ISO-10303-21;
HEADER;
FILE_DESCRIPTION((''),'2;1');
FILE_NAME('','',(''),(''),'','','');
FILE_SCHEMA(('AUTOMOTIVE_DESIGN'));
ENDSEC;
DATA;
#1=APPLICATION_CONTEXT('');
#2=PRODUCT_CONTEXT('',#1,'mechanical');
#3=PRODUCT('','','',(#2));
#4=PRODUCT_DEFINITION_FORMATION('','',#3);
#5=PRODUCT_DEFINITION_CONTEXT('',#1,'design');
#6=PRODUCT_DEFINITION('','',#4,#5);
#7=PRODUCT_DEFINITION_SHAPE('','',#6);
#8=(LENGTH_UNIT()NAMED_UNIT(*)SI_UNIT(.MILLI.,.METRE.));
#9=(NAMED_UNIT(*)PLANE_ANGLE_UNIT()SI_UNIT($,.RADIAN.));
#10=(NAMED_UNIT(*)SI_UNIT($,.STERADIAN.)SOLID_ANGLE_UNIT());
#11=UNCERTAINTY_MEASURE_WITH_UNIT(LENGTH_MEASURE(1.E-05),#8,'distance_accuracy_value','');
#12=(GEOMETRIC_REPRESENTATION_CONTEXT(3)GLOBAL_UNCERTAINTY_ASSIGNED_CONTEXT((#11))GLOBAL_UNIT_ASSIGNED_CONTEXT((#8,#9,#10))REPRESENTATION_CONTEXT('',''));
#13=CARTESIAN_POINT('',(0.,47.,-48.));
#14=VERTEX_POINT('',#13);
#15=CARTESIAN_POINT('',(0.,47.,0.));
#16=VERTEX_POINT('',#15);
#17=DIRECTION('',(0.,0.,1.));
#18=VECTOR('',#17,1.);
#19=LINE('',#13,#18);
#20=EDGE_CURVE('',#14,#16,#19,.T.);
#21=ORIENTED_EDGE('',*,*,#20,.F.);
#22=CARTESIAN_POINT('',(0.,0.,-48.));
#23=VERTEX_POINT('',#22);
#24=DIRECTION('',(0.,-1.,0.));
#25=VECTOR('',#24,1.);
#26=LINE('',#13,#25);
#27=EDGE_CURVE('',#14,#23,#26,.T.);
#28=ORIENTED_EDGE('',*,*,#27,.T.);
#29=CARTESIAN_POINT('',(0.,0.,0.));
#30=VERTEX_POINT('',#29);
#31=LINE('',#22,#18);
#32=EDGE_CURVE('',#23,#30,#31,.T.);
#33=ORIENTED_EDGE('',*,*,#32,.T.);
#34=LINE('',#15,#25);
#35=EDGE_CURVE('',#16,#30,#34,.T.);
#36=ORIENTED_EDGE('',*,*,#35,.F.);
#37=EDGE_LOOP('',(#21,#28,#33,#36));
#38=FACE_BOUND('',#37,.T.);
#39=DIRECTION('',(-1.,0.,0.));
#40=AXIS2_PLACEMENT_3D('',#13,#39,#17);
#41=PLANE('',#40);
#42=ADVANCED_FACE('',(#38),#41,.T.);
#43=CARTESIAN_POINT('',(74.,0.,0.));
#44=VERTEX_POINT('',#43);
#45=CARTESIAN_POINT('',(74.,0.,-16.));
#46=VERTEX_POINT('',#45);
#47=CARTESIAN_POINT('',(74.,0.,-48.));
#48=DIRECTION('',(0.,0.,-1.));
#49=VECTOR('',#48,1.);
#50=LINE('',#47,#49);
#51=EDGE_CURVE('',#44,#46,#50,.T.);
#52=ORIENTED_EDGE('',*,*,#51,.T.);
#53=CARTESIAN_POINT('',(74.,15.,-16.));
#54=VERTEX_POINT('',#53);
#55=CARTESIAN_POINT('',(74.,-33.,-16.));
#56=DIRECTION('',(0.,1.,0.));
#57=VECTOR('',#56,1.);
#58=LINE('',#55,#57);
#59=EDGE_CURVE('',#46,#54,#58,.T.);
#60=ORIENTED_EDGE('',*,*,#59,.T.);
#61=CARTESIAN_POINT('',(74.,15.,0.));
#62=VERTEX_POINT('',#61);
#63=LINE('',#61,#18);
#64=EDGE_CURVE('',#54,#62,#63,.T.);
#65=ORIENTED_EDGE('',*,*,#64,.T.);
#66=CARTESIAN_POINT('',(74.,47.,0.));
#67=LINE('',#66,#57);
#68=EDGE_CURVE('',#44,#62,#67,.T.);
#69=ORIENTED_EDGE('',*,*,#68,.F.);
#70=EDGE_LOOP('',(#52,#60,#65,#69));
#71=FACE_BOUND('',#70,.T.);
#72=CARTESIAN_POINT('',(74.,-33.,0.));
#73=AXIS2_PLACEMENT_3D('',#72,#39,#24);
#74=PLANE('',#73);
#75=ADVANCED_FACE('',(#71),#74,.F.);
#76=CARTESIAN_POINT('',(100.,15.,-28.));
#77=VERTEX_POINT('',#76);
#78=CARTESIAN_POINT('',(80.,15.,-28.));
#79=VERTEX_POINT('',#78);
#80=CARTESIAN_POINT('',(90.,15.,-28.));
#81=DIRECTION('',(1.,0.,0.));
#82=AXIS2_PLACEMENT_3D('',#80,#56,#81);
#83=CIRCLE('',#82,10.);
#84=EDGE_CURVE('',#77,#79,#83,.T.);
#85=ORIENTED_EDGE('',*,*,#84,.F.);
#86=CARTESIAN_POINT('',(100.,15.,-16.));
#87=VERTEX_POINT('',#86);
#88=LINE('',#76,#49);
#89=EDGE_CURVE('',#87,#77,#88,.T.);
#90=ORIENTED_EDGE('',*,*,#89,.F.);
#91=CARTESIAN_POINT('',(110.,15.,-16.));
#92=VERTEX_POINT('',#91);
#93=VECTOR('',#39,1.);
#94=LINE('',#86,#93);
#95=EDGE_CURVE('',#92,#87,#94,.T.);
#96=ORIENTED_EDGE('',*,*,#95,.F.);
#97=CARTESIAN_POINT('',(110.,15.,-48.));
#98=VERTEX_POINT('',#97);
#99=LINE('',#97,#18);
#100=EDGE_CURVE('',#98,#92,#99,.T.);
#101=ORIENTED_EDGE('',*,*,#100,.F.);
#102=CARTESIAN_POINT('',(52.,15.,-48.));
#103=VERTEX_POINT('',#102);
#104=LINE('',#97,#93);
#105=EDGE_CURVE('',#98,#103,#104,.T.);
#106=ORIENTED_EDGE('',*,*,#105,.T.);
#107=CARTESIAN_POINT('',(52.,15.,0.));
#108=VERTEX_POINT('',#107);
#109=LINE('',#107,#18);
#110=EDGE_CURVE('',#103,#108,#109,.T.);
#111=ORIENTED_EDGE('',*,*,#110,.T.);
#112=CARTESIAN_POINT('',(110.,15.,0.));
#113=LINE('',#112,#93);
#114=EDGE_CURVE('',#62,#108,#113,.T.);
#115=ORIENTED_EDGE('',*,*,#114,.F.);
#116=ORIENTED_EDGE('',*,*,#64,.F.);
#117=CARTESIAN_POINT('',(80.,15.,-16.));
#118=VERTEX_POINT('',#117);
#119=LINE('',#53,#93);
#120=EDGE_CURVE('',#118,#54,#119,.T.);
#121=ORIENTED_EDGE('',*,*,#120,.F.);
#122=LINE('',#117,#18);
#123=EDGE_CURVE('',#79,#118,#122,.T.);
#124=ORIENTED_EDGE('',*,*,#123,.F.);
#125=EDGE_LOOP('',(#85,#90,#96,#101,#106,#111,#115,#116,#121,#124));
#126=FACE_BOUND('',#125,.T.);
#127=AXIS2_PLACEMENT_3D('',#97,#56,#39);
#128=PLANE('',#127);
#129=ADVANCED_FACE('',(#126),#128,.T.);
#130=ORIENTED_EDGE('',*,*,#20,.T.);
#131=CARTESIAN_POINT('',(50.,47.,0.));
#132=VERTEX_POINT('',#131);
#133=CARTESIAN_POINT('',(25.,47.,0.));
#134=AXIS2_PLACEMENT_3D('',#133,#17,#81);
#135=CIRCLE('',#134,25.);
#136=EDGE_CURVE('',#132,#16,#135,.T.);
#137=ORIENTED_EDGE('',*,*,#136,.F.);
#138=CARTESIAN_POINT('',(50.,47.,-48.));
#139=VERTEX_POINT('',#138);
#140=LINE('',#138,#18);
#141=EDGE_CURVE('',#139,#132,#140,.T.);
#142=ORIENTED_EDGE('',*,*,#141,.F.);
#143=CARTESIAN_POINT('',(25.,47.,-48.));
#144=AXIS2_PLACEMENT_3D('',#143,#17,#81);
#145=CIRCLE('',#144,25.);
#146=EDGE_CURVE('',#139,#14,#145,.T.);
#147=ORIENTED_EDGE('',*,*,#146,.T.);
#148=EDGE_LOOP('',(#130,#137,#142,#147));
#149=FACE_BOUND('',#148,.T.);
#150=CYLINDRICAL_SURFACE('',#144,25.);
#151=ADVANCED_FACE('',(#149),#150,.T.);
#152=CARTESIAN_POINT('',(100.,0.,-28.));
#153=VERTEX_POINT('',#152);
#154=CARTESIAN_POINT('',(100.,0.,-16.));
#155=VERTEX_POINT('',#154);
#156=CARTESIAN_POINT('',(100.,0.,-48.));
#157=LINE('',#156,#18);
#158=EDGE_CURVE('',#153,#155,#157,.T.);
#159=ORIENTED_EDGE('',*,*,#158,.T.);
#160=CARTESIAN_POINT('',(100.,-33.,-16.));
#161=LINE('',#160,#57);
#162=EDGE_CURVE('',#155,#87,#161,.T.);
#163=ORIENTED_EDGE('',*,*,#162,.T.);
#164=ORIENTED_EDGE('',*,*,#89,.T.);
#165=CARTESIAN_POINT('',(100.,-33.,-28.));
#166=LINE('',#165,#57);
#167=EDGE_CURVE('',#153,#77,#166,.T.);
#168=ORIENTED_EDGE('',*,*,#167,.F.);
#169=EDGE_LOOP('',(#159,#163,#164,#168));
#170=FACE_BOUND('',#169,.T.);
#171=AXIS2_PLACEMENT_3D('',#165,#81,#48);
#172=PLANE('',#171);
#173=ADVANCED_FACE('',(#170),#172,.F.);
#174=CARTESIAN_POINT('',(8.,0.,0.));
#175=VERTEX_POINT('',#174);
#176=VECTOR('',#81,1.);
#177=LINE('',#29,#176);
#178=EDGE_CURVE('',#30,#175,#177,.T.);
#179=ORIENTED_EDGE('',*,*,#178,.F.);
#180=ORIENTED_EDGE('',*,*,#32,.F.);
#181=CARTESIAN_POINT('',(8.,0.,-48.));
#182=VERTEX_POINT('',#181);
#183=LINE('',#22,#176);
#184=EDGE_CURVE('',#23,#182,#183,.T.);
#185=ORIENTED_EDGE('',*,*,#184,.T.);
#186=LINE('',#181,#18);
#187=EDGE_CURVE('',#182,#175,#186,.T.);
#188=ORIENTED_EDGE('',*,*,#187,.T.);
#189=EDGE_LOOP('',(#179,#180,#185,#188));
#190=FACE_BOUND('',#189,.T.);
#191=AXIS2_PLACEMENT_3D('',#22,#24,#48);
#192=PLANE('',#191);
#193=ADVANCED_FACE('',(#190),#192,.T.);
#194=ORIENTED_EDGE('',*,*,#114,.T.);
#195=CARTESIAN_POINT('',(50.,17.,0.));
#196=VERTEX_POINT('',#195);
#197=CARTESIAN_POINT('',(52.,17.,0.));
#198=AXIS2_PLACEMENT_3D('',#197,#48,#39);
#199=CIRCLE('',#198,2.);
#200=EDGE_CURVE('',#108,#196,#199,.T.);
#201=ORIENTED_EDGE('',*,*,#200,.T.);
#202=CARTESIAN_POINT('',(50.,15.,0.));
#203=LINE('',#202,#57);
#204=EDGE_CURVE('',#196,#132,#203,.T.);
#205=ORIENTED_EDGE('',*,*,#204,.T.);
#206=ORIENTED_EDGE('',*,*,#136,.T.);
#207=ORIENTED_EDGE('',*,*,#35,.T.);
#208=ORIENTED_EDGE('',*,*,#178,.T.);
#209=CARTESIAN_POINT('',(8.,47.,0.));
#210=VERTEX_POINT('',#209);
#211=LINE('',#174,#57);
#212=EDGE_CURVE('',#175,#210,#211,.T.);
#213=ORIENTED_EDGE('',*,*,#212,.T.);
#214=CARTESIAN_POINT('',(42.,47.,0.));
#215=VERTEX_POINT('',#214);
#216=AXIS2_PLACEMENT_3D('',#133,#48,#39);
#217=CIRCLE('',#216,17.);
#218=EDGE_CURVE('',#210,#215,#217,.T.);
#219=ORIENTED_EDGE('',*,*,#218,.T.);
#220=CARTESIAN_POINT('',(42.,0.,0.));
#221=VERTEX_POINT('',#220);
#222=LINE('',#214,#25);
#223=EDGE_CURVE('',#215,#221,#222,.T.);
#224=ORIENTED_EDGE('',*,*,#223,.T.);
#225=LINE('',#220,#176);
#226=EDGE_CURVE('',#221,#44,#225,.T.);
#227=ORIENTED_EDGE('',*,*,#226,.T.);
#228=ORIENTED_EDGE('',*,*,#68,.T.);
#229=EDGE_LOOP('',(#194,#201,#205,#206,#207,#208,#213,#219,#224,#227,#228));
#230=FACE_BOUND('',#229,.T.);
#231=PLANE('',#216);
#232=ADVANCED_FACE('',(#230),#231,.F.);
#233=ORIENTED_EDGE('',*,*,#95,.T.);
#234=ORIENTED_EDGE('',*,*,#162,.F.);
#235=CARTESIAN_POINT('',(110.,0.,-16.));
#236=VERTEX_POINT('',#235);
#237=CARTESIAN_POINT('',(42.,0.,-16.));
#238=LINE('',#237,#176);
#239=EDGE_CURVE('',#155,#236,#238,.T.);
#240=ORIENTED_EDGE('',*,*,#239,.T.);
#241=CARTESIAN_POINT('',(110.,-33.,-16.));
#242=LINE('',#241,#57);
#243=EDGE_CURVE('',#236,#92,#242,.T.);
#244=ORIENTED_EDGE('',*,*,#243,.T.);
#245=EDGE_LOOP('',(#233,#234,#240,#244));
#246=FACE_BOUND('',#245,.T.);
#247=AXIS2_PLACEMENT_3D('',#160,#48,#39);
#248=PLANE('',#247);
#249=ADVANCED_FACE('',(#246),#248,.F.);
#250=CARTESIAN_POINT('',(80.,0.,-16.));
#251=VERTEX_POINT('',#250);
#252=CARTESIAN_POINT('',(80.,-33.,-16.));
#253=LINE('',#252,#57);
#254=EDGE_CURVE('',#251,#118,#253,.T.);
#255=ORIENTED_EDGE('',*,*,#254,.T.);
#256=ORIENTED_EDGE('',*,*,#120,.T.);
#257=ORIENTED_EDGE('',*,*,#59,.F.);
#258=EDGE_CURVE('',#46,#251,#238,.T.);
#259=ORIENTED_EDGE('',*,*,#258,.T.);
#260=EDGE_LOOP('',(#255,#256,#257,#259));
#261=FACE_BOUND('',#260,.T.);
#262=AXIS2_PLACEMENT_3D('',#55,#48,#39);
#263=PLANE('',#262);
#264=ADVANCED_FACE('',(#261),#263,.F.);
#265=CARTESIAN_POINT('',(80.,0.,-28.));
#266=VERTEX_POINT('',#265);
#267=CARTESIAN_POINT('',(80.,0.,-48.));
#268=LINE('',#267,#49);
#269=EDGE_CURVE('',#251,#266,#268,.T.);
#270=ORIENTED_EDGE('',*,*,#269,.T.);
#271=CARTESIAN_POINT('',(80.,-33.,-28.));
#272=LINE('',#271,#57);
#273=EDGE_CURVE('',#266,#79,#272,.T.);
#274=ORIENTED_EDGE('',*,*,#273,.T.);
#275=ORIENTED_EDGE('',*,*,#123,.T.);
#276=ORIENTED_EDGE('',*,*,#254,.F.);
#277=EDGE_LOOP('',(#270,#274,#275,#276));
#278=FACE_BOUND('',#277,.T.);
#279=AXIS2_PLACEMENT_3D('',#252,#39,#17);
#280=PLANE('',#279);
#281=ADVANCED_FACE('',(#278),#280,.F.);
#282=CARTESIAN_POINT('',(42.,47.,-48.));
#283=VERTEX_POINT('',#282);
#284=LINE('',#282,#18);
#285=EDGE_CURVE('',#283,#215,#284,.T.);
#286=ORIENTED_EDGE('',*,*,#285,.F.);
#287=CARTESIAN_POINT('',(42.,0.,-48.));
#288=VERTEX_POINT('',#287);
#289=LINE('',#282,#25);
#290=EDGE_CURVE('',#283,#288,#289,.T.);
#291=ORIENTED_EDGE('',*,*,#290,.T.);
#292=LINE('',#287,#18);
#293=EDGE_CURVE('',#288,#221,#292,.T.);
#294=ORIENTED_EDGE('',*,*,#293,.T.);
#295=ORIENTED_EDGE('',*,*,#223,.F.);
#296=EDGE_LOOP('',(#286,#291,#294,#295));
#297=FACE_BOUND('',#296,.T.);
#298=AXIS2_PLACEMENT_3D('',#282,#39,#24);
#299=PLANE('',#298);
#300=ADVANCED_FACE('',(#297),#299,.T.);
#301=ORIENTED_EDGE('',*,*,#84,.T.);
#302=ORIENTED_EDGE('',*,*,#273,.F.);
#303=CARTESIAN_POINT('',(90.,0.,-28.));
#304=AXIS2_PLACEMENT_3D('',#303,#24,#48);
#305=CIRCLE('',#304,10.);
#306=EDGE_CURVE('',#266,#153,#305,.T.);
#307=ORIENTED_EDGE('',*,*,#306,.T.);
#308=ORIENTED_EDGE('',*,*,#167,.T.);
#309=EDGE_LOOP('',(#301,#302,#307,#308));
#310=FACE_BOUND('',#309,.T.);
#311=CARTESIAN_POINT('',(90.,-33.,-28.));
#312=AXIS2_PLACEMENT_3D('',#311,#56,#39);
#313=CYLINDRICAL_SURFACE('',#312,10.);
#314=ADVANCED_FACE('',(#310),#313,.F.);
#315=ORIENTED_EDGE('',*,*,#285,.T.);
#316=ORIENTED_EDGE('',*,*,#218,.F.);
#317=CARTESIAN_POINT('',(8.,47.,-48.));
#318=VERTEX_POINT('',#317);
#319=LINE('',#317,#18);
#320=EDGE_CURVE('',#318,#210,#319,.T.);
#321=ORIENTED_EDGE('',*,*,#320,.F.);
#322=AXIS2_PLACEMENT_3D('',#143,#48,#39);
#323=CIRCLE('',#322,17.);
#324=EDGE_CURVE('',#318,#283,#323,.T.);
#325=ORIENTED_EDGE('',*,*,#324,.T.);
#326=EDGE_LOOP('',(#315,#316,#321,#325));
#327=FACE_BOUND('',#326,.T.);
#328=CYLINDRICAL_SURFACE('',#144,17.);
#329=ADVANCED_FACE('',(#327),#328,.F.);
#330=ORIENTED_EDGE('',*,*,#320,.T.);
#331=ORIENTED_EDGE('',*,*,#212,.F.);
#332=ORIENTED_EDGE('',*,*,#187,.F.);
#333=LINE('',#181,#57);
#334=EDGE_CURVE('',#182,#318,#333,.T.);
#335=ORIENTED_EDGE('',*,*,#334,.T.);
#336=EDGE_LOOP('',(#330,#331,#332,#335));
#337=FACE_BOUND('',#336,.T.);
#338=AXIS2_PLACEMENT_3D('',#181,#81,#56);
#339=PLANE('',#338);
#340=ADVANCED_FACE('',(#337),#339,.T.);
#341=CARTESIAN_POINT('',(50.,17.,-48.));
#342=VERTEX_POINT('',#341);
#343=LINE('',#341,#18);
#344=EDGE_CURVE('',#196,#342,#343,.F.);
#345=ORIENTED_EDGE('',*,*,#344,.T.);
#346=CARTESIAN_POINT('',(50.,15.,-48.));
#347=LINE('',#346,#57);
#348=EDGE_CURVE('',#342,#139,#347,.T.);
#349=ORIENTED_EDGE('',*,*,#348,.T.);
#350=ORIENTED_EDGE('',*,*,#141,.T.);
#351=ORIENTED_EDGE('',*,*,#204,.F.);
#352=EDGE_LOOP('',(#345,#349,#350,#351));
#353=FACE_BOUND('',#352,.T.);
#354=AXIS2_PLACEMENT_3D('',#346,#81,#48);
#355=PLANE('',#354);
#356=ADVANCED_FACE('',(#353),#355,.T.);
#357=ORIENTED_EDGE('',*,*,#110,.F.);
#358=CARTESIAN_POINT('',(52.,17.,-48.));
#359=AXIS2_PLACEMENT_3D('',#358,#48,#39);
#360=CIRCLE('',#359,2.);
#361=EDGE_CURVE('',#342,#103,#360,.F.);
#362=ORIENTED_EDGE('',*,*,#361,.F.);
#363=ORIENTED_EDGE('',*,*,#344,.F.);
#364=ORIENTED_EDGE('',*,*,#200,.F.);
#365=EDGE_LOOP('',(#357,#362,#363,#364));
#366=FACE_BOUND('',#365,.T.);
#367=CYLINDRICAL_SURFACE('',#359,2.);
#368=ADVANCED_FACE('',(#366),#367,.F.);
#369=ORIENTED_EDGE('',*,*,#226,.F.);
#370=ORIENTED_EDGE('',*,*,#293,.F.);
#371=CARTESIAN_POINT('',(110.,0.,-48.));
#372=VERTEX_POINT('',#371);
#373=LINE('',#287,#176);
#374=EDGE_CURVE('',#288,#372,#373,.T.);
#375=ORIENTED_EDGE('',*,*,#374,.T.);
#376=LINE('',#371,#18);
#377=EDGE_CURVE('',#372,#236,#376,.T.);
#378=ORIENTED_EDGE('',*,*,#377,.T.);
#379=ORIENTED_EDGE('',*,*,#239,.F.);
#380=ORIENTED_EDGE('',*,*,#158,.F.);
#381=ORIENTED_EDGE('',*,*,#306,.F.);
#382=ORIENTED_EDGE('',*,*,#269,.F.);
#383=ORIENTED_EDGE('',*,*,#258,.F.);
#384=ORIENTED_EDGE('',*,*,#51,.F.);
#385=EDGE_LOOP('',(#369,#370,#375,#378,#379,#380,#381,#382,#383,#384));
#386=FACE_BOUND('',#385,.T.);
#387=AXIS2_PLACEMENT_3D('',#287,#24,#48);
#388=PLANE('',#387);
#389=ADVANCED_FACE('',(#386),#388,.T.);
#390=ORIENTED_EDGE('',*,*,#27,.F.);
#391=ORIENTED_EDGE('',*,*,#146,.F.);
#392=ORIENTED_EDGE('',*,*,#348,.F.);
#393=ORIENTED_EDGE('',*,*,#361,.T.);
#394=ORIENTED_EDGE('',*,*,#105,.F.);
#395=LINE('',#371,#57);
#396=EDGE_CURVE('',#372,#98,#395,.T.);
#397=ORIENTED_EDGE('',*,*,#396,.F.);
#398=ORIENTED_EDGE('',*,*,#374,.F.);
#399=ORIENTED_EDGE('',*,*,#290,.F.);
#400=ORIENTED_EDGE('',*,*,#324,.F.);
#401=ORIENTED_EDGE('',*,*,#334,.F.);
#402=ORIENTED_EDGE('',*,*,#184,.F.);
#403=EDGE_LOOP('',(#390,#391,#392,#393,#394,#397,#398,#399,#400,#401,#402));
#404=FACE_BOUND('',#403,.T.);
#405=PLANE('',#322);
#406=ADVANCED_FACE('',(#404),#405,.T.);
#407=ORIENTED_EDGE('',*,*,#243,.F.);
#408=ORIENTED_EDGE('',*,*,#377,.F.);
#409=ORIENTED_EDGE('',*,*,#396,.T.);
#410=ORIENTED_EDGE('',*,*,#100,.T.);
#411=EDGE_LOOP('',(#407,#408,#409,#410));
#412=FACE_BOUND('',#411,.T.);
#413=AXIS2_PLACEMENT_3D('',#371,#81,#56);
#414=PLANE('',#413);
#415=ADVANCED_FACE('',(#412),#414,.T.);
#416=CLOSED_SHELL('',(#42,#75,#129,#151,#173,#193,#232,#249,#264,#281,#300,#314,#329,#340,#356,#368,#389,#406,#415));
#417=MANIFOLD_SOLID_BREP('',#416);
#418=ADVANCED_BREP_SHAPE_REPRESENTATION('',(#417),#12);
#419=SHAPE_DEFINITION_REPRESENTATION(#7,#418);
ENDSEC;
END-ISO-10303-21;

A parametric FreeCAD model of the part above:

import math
import FreeCAD as App
import Part
import Sketcher


def edges_at(feature, points):
    """Names of the edges that pass closest to the given points."""
    edges = feature.Shape.Edges
    near = lambda p: min(range(len(edges)), key=lambda i: edges[i].distToShape(Part.Vertex(*p))[0])
    return sorted({f"Edge{near(p) + 1}" for p in points})

doc = App.newDocument("Part")
body = doc.addObject("PartDesign::Body", "Body")

# Sketch on XY plane
sketch1 = doc.addObject("Sketcher::SketchObject", "Sketch")
body.addObject(sketch1)
sketch1.AttachmentSupport = (doc.XY_Plane, [""])
sketch1.MapMode = "FlatFace"
sketch1.addGeometry(Part.LineSegment(App.Vector(0, 0, 0), App.Vector(8, 0, 0)), False)
sketch1.addGeometry(Part.LineSegment(App.Vector(8, 0, 0), App.Vector(8, 47, 0)), False)
sketch1.addGeometry(Part.ArcOfCircle(Part.Circle(App.Vector(25, 47, 0), App.Vector(0, 0, 1), 17), math.radians(0), math.radians(180)), False)
sketch1.addGeometry(Part.LineSegment(App.Vector(42, 47, 0), App.Vector(42, 0, 0)), False)
sketch1.addGeometry(Part.LineSegment(App.Vector(42, 0, 0), App.Vector(110, 0, 0)), False)
sketch1.addGeometry(Part.LineSegment(App.Vector(110, 0, 0), App.Vector(110, 15, 0)), False)
sketch1.addGeometry(Part.LineSegment(App.Vector(110, 15, 0), App.Vector(50, 15, 0)), False)
sketch1.addGeometry(Part.LineSegment(App.Vector(50, 15, 0), App.Vector(50, 47, 0)), False)
sketch1.addGeometry(Part.ArcOfCircle(Part.Circle(App.Vector(25, 47, 0), App.Vector(0, 0, 1), 25), math.radians(0), math.radians(180)), False)
sketch1.addGeometry(Part.LineSegment(App.Vector(0, 47, 0), App.Vector(0, 0, 0)), False)
sketch1.addConstraint(Sketcher.Constraint("Coincident", 0, 2, 1, 1))
sketch1.addConstraint(Sketcher.Constraint("Tangent", 1, 2, 2, 2))
sketch1.addConstraint(Sketcher.Constraint("Tangent", 2, 1, 3, 1))
sketch1.addConstraint(Sketcher.Constraint("Coincident", 3, 2, 4, 1))
sketch1.addConstraint(Sketcher.Constraint("Coincident", 4, 2, 5, 1))
sketch1.addConstraint(Sketcher.Constraint("Coincident", 5, 2, 6, 1))
sketch1.addConstraint(Sketcher.Constraint("Coincident", 6, 2, 7, 1))
sketch1.addConstraint(Sketcher.Constraint("Tangent", 7, 2, 8, 1))
sketch1.addConstraint(Sketcher.Constraint("Tangent", 8, 2, 9, 1))
sketch1.addConstraint(Sketcher.Constraint("Coincident", 9, 2, 0, 1))
sketch1.addConstraint(Sketcher.Constraint("Horizontal", 0))
sketch1.addConstraint(Sketcher.Constraint("Vertical", 1))
sketch1.addConstraint(Sketcher.Constraint("Vertical", 3))
sketch1.addConstraint(Sketcher.Constraint("Horizontal", 4))
sketch1.addConstraint(Sketcher.Constraint("Vertical", 5))
sketch1.addConstraint(Sketcher.Constraint("Horizontal", 6))
sketch1.addConstraint(Sketcher.Constraint("Vertical", 7))
sketch1.addConstraint(Sketcher.Constraint("Vertical", 9))
sketch1.addConstraint(Sketcher.Constraint("Coincident", 9, 2, -1, 1))
sketch1.addConstraint(Sketcher.Constraint("Coincident", 8, 3, 2, 3))
sketch1.addConstraint(Sketcher.Constraint("PointOnObject", 3, 2, -1))
sketch1.addConstraint(Sketcher.Constraint("Radius", 2, 17.0))
sketch1.addConstraint(Sketcher.Constraint("Radius", 8, 25.0))
sketch1.addConstraint(Sketcher.Constraint("DistanceX", 4, 1, 4, 2, 68.0))
sketch1.addConstraint(Sketcher.Constraint("DistanceY", 1, 1, 1, 2, 47.0))
sketch1.addConstraint(Sketcher.Constraint("DistanceY", 5, 1, 5, 2, 15.0))
pad1 = doc.addObject("PartDesign::Pad", "Pad")
body.addObject(pad1)
pad1.Profile = sketch1
pad1.Length = 48
pad1.Reversed = True

# Sketch on XZ plane
sketch2 = doc.addObject("Sketcher::SketchObject", "Sketch001")
body.addObject(sketch2)
sketch2.AttachmentSupport = (doc.XZ_Plane, [""])
sketch2.MapMode = "FlatFace"
sketch2.AttachmentOffset = App.Placement(App.Vector(0, 0, -15), App.Rotation())
sketch2.addGeometry(Part.LineSegment(App.Vector(74, -16, 0), App.Vector(74, 0, 0)), False)
sketch2.addGeometry(Part.LineSegment(App.Vector(74, 0, 0), App.Vector(110, 0, 0)), False)
sketch2.addGeometry(Part.LineSegment(App.Vector(110, 0, 0), App.Vector(110, -16, 0)), False)
sketch2.addGeometry(Part.LineSegment(App.Vector(110, -16, 0), App.Vector(100, -16, 0)), False)
sketch2.addGeometry(Part.LineSegment(App.Vector(100, -16, 0), App.Vector(100, -28, 0)), False)
sketch2.addGeometry(Part.ArcOfCircle(Part.Circle(App.Vector(90, -28, 0), App.Vector(0, 0, 1), 10), math.radians(180), math.radians(360)), False)
sketch2.addGeometry(Part.LineSegment(App.Vector(80, -28, 0), App.Vector(80, -16, 0)), False)
sketch2.addGeometry(Part.LineSegment(App.Vector(80, -16, 0), App.Vector(74, -16, 0)), False)
sketch2.addConstraint(Sketcher.Constraint("Coincident", 0, 2, 1, 1))
sketch2.addConstraint(Sketcher.Constraint("Coincident", 1, 2, 2, 1))
sketch2.addConstraint(Sketcher.Constraint("Coincident", 2, 2, 3, 1))
sketch2.addConstraint(Sketcher.Constraint("Coincident", 3, 2, 4, 1))
sketch2.addConstraint(Sketcher.Constraint("Tangent", 4, 2, 5, 2))
sketch2.addConstraint(Sketcher.Constraint("Tangent", 5, 1, 6, 1))
sketch2.addConstraint(Sketcher.Constraint("Coincident", 6, 2, 7, 1))
sketch2.addConstraint(Sketcher.Constraint("Coincident", 7, 2, 0, 1))
sketch2.addConstraint(Sketcher.Constraint("Vertical", 0))
sketch2.addConstraint(Sketcher.Constraint("Horizontal", 1))
sketch2.addConstraint(Sketcher.Constraint("Vertical", 2))
sketch2.addConstraint(Sketcher.Constraint("Horizontal", 3))
sketch2.addConstraint(Sketcher.Constraint("Vertical", 4))
sketch2.addConstraint(Sketcher.Constraint("Vertical", 6))
sketch2.addConstraint(Sketcher.Constraint("Horizontal", 7))
sketch2.addConstraint(Sketcher.Constraint("PointOnObject", 0, 2, -1))
sketch2.addConstraint(Sketcher.Constraint("Horizontal", 3, 2, 6, 2))
sketch2.addConstraint(Sketcher.Constraint("Radius", 5, 10.0))
sketch2.addConstraint(Sketcher.Constraint("DistanceX", 1, 1, 1, 2, 36.0))
sketch2.addConstraint(Sketcher.Constraint("DistanceX", 3, 2, 3, 1, 10.0))
sketch2.addConstraint(Sketcher.Constraint("DistanceY", 0, 1, 0, 2, 16.0))
sketch2.addConstraint(Sketcher.Constraint("DistanceY", 4, 2, 4, 1, 12.0))
sketch2.addConstraint(Sketcher.Constraint("DistanceX", -1, 1, 5, 3, 90.0))
pocket1 = doc.addObject("PartDesign::Pocket", "Pocket")
body.addObject(pocket1)
pocket1.Profile = sketch2
pocket1.Length = 48
pocket1.Reversed = True
doc.recompute()

fillet = doc.addObject("PartDesign::Fillet", "Fillet")
body.addObject(fillet)
fillet.Base = (pocket1, edges_at(pocket1, [(50, 15, -24)]))
fillet.Radius = 2

doc.recompute()
